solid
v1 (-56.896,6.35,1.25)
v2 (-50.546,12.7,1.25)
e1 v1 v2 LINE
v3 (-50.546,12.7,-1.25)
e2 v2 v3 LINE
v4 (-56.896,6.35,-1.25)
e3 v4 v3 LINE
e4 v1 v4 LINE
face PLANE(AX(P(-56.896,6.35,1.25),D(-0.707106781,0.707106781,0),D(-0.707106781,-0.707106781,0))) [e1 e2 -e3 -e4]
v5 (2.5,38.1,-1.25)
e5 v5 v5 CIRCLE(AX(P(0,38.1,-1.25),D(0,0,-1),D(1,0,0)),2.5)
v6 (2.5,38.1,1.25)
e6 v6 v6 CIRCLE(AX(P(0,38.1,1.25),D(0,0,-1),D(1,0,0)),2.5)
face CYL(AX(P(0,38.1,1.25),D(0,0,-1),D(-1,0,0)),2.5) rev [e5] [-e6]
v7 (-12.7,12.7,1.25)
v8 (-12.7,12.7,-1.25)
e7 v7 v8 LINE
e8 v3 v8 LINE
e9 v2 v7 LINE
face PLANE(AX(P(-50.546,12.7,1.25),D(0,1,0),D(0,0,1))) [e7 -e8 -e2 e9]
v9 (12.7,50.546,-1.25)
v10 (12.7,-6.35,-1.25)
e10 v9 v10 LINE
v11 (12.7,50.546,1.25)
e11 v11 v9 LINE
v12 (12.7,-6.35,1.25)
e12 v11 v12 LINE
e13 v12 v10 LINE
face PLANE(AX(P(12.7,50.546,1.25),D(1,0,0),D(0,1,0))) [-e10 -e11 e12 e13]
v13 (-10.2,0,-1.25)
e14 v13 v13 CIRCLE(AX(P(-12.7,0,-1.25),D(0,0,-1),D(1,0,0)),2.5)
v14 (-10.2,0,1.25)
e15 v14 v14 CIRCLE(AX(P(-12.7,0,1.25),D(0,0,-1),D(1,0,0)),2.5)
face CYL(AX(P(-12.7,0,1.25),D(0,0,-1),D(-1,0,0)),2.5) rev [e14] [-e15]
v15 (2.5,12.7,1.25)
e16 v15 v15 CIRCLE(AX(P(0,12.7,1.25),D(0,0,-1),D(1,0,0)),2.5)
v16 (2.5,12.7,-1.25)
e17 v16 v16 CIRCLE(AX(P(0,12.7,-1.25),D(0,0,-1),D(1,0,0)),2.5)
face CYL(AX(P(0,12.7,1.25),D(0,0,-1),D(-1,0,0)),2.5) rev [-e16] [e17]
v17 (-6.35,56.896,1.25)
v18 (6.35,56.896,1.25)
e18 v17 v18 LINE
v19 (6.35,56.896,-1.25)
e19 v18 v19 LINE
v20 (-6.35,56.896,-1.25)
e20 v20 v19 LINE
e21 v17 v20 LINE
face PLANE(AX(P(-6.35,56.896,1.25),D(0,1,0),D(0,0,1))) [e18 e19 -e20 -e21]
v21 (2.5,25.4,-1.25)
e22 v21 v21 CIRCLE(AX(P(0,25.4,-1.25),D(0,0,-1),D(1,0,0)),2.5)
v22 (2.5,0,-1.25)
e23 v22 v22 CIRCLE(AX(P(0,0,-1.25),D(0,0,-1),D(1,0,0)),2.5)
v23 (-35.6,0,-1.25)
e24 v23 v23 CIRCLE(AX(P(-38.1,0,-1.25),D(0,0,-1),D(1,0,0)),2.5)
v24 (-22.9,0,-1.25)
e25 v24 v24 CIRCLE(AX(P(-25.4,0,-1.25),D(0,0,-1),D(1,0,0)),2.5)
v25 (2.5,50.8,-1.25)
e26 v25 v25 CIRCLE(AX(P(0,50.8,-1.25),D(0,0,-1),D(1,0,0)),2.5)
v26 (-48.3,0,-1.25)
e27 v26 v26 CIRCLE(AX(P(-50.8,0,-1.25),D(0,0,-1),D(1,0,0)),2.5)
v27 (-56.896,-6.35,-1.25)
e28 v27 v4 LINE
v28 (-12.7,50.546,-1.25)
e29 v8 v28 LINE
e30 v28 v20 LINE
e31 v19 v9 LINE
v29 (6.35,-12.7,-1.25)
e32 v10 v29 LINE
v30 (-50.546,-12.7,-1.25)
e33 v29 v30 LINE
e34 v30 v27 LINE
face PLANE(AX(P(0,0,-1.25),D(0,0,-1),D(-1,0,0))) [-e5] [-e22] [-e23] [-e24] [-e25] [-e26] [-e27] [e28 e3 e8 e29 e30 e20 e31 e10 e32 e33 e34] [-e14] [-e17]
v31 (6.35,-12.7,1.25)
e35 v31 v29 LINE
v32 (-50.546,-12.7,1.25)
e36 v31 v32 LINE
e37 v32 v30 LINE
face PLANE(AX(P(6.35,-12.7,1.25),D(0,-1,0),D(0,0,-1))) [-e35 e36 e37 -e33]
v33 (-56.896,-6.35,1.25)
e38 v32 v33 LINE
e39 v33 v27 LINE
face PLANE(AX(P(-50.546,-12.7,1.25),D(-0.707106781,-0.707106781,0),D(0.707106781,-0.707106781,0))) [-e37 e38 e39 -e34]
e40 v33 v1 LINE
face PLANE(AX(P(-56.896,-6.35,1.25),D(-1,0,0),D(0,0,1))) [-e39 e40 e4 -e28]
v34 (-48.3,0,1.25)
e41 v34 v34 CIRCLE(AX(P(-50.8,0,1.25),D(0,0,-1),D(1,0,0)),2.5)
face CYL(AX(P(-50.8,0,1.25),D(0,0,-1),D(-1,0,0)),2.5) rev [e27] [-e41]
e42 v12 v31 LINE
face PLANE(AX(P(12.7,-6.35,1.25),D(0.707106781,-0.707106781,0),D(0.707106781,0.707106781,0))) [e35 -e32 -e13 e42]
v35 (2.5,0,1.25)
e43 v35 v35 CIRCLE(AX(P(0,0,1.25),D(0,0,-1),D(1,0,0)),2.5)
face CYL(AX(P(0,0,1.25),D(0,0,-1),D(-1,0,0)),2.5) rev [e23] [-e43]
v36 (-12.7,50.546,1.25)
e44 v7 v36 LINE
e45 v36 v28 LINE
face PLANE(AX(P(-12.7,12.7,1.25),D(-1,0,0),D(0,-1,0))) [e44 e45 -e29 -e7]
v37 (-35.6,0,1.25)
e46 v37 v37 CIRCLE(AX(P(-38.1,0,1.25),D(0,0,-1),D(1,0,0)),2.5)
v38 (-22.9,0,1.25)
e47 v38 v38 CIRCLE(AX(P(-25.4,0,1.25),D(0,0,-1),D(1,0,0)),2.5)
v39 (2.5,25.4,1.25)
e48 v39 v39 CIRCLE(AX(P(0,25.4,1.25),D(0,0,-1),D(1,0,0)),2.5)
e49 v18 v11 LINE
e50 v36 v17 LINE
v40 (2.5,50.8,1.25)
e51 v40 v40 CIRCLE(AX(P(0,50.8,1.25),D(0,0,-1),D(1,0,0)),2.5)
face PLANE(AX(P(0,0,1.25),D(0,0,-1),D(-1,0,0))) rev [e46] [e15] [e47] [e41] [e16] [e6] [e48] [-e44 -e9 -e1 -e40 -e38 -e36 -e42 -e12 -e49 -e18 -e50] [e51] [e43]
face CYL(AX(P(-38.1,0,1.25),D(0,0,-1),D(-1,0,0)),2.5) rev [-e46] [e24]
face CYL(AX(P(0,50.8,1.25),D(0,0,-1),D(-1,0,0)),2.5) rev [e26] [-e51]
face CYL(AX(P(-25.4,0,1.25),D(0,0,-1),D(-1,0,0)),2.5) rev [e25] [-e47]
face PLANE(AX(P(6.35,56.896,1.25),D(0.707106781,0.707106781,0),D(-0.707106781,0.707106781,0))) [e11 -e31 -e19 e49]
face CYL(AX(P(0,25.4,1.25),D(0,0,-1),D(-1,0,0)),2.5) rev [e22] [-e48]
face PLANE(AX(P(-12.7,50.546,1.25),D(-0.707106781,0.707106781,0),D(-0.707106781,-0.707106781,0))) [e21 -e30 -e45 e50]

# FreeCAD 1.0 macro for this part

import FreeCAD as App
import Part
import Sketcher
from FreeCAD import Vector
Q = App.Units.Quantity

doc = App.newDocument("Part")
body = doc.addObject("PartDesign::Body", "Body")

# Sketch on XY plane
sketch1 = body.newObject("Sketcher::SketchObject", "Sketch")
sketch1.AttachmentSupport = (doc.getObject("XY_Plane"), [""])
sketch1.MapMode = "FlatFace"
sketch1.AttachmentOffset = App.Placement(Vector(0, 0, -1.25), App.Rotation())
sketch1.addGeometry(Part.LineSegment(Vector(6.35, -12.7, 0), Vector(-50.546, -12.7, 0)), False)
sketch1.addGeometry(Part.LineSegment(Vector(-50.546, -12.7, 0), Vector(-56.896, -6.35, 0)), False)
sketch1.addGeometry(Part.LineSegment(Vector(-56.896, -6.35, 0), Vector(-56.896, 6.35, 0)), False)
sketch1.addGeometry(Part.LineSegment(Vector(-56.896, 6.35, 0), Vector(-50.546, 12.7, 0)), False)
sketch1.addGeometry(Part.LineSegment(Vector(-50.546, 12.7, 0), Vector(-12.7, 12.7, 0)), False)
sketch1.addGeometry(Part.LineSegment(Vector(-12.7, 12.7, 0), Vector(-12.7, 50.546, 0)), False)
sketch1.addGeometry(Part.LineSegment(Vector(-12.7, 50.546, 0), Vector(-6.35, 56.896, 0)), False)
sketch1.addGeometry(Part.LineSegment(Vector(-6.35, 56.896, 0), Vector(6.35, 56.896, 0)), False)
sketch1.addGeometry(Part.LineSegment(Vector(6.35, 56.896, 0), Vector(12.7, 50.546, 0)), False)
sketch1.addGeometry(Part.LineSegment(Vector(12.7, 50.546, 0), Vector(12.7, -6.35, 0)), False)
sketch1.addGeometry(Part.LineSegment(Vector(12.7, -6.35, 0), Vector(6.35, -12.7, 0)), False)
sketch1.addGeometry(Part.Circle(Vector(0, 0, 0), Vector(0, 0, 1), 2.5), False)
sketch1.addGeometry(Part.Circle(Vector(-12.7, 0, 0), Vector(0, 0, 1), 2.5), False)
sketch1.addGeometry(Part.Circle(Vector(0, 12.7, 0), Vector(0, 0, 1), 2.5), False)
sketch1.addGeometry(Part.Circle(Vector(-25.4, 0, 0), Vector(0, 0, 1), 2.5), False)
sketch1.addGeometry(Part.Circle(Vector(-38.1, 0, 0), Vector(0, 0, 1), 2.5), False)
sketch1.addGeometry(Part.Circle(Vector(-50.8, 0, 0), Vector(0, 0, 1), 2.5), False)
sketch1.addGeometry(Part.Circle(Vector(0, 25.4, 0), Vector(0, 0, 1), 2.5), False)
sketch1.addGeometry(Part.Circle(Vector(0, 38.1, 0), Vector(0, 0, 1), 2.5), False)
sketch1.addGeometry(Part.Circle(Vector(0, 50.8, 0), Vector(0, 0, 1), 2.5), False)
sketch1.addConstraint(Sketcher.Constraint("Coincident", 0, 2, 1, 1))
sketch1.addConstraint(Sketcher.Constraint("Coincident", 1, 2, 2, 1))
sketch1.addConstraint(Sketcher.Constraint("Coincident", 2, 2, 3, 1))
sketch1.addConstraint(Sketcher.Constraint("Coincident", 3, 2, 4, 1))
sketch1.addConstraint(Sketcher.Constraint("Coincident", 4, 2, 5, 1))
sketch1.addConstraint(Sketcher.Constraint("Coincident", 5, 2, 6, 1))
sketch1.addConstraint(Sketcher.Constraint("Coincident", 6, 2, 7, 1))
sketch1.addConstraint(Sketcher.Constraint("Coincident", 7, 2, 8, 1))
sketch1.addConstraint(Sketcher.Constraint("Coincident", 8, 2, 9, 1))
sketch1.addConstraint(Sketcher.Constraint("Coincident", 9, 2, 10, 1))
sketch1.addConstraint(Sketcher.Constraint("Coincident", 10, 2, 0, 1))
sketch1.addConstraint(Sketcher.Constraint("Horizontal", 0))
sketch1.addConstraint(Sketcher.Constraint("Vertical", 2))
sketch1.addConstraint(Sketcher.Constraint("Horizontal", 4))
sketch1.addConstraint(Sketcher.Constraint("Vertical", 5))
sketch1.addConstraint(Sketcher.Constraint("Horizontal", 7))
sketch1.addConstraint(Sketcher.Constraint("Vertical", 9))
sketch1.addConstraint(Sketcher.Constraint("Coincident", 11, 3, -1, 1))
sketch1.addConstraint(Sketcher.Constraint("Equal", 11, 12))
sketch1.addConstraint(Sketcher.Constraint("Equal", 12, 13))
sketch1.addConstraint(Sketcher.Constraint("Equal", 13, 14))
sketch1.addConstraint(Sketcher.Constraint("Equal", 14, 15))
sketch1.addConstraint(Sketcher.Constraint("Equal", 15, 16))
sketch1.addConstraint(Sketcher.Constraint("Equal", 16, 17))
sketch1.addConstraint(Sketcher.Constraint("Equal", 17, 18))
sketch1.addConstraint(Sketcher.Constraint("Equal", 18, 19))
sketch1.addConstraint(Sketcher.Constraint("Symmetric", 5, 2, 8, 2, -2))
sketch1.addConstraint(Sketcher.Constraint("Symmetric", 0, 2, 3, 2, -1))
sketch1.addConstraint(Sketcher.Constraint("PointOnObject", 12, 3, -1))
sketch1.addConstraint(Sketcher.Constraint("PointOnObject", 13, 3, -2))
sketch1.addConstraint(Sketcher.Constraint("PointOnObject", 14, 3, -1))
sketch1.addConstraint(Sketcher.Constraint("PointOnObject", 15, 3, -1))
sketch1.addConstraint(Sketcher.Constraint("PointOnObject", 16, 3, -1))
sketch1.addConstraint(Sketcher.Constraint("PointOnObject", 17, 3, -2))
sketch1.addConstraint(Sketcher.Constraint("PointOnObject", 18, 3, -2))
sketch1.addConstraint(Sketcher.Constraint("PointOnObject", 19, 3, -2))
sketch1.addConstraint(Sketcher.Constraint("Perpendicular", 1, 3))
sketch1.addConstraint(Sketcher.Constraint("Parallel", 3, 6))
sketch1.addConstraint(Sketcher.Constraint("Perpendicular", 6, 8))
sketch1.addConstraint(Sketcher.Constraint("Perpendicular", 8, 10))
sketch1.addConstraint(Sketcher.Constraint("Horizontal", 13, 3, 3, 2))
sketch1.addConstraint(Sketcher.Constraint("Horizontal", 1, 2, 9, 2))
sketch1.addConstraint(Sketcher.Constraint("Vertical", 12, 3, 4, 2))
sketch1.addConstraint(Sketcher.Constraint("Vertical", 7, 2, 10, 2))
sketch1.addConstraint(Sketcher.Constraint("Equal", 7, 2))
sketch1.addConstraint(Sketcher.Constraint("Equal", 4, 5))
sketch1.addConstraint(Sketcher.Constraint("Equal", 0, 9))
sketch1.addConstraint(Sketcher.Constraint("DistanceX", 7, 1, 7, 2, Q("0.5 in")))
sketch1.addConstraint(Sketcher.Constraint("DistanceX", 14, 3, -1, 1, Q("1 in")))
sketch1.addConstraint(Sketcher.Constraint("DistanceX", 16, 3, -1, 1, Q("2 in")))
sketch1.addConstraint(Sketcher.Constraint("DistanceY", -1, 1, 17, 3, Q("1 in")))
sketch1.addConstraint(Sketcher.Constraint("DistanceY", -1, 1, 19, 3, Q("2 in")))
sketch1.addConstraint(Sketcher.Constraint("DistanceX", 15, 3, 12, 3, Q("1 in")))
sketch1.addConstraint(Sketcher.Constraint("DistanceY", 13, 3, 18, 3, Q("1 in")))
sketch1.addConstraint(Sketcher.Constraint("DistanceY", 0, 2, 3, 2, Q("1 in")))
sketch1.addConstraint(Sketcher.Constraint("DistanceX", 0, 2, 0, 1, Q("2.24 in")))
sketch1.addConstraint(Sketcher.Constraint("Diameter", 11, 5.0))
pad1 = body.newObject("PartDesign::Pad", "Pad")
pad1.Profile = sketch1
pad1.Length = 2.5

doc.recompute()
